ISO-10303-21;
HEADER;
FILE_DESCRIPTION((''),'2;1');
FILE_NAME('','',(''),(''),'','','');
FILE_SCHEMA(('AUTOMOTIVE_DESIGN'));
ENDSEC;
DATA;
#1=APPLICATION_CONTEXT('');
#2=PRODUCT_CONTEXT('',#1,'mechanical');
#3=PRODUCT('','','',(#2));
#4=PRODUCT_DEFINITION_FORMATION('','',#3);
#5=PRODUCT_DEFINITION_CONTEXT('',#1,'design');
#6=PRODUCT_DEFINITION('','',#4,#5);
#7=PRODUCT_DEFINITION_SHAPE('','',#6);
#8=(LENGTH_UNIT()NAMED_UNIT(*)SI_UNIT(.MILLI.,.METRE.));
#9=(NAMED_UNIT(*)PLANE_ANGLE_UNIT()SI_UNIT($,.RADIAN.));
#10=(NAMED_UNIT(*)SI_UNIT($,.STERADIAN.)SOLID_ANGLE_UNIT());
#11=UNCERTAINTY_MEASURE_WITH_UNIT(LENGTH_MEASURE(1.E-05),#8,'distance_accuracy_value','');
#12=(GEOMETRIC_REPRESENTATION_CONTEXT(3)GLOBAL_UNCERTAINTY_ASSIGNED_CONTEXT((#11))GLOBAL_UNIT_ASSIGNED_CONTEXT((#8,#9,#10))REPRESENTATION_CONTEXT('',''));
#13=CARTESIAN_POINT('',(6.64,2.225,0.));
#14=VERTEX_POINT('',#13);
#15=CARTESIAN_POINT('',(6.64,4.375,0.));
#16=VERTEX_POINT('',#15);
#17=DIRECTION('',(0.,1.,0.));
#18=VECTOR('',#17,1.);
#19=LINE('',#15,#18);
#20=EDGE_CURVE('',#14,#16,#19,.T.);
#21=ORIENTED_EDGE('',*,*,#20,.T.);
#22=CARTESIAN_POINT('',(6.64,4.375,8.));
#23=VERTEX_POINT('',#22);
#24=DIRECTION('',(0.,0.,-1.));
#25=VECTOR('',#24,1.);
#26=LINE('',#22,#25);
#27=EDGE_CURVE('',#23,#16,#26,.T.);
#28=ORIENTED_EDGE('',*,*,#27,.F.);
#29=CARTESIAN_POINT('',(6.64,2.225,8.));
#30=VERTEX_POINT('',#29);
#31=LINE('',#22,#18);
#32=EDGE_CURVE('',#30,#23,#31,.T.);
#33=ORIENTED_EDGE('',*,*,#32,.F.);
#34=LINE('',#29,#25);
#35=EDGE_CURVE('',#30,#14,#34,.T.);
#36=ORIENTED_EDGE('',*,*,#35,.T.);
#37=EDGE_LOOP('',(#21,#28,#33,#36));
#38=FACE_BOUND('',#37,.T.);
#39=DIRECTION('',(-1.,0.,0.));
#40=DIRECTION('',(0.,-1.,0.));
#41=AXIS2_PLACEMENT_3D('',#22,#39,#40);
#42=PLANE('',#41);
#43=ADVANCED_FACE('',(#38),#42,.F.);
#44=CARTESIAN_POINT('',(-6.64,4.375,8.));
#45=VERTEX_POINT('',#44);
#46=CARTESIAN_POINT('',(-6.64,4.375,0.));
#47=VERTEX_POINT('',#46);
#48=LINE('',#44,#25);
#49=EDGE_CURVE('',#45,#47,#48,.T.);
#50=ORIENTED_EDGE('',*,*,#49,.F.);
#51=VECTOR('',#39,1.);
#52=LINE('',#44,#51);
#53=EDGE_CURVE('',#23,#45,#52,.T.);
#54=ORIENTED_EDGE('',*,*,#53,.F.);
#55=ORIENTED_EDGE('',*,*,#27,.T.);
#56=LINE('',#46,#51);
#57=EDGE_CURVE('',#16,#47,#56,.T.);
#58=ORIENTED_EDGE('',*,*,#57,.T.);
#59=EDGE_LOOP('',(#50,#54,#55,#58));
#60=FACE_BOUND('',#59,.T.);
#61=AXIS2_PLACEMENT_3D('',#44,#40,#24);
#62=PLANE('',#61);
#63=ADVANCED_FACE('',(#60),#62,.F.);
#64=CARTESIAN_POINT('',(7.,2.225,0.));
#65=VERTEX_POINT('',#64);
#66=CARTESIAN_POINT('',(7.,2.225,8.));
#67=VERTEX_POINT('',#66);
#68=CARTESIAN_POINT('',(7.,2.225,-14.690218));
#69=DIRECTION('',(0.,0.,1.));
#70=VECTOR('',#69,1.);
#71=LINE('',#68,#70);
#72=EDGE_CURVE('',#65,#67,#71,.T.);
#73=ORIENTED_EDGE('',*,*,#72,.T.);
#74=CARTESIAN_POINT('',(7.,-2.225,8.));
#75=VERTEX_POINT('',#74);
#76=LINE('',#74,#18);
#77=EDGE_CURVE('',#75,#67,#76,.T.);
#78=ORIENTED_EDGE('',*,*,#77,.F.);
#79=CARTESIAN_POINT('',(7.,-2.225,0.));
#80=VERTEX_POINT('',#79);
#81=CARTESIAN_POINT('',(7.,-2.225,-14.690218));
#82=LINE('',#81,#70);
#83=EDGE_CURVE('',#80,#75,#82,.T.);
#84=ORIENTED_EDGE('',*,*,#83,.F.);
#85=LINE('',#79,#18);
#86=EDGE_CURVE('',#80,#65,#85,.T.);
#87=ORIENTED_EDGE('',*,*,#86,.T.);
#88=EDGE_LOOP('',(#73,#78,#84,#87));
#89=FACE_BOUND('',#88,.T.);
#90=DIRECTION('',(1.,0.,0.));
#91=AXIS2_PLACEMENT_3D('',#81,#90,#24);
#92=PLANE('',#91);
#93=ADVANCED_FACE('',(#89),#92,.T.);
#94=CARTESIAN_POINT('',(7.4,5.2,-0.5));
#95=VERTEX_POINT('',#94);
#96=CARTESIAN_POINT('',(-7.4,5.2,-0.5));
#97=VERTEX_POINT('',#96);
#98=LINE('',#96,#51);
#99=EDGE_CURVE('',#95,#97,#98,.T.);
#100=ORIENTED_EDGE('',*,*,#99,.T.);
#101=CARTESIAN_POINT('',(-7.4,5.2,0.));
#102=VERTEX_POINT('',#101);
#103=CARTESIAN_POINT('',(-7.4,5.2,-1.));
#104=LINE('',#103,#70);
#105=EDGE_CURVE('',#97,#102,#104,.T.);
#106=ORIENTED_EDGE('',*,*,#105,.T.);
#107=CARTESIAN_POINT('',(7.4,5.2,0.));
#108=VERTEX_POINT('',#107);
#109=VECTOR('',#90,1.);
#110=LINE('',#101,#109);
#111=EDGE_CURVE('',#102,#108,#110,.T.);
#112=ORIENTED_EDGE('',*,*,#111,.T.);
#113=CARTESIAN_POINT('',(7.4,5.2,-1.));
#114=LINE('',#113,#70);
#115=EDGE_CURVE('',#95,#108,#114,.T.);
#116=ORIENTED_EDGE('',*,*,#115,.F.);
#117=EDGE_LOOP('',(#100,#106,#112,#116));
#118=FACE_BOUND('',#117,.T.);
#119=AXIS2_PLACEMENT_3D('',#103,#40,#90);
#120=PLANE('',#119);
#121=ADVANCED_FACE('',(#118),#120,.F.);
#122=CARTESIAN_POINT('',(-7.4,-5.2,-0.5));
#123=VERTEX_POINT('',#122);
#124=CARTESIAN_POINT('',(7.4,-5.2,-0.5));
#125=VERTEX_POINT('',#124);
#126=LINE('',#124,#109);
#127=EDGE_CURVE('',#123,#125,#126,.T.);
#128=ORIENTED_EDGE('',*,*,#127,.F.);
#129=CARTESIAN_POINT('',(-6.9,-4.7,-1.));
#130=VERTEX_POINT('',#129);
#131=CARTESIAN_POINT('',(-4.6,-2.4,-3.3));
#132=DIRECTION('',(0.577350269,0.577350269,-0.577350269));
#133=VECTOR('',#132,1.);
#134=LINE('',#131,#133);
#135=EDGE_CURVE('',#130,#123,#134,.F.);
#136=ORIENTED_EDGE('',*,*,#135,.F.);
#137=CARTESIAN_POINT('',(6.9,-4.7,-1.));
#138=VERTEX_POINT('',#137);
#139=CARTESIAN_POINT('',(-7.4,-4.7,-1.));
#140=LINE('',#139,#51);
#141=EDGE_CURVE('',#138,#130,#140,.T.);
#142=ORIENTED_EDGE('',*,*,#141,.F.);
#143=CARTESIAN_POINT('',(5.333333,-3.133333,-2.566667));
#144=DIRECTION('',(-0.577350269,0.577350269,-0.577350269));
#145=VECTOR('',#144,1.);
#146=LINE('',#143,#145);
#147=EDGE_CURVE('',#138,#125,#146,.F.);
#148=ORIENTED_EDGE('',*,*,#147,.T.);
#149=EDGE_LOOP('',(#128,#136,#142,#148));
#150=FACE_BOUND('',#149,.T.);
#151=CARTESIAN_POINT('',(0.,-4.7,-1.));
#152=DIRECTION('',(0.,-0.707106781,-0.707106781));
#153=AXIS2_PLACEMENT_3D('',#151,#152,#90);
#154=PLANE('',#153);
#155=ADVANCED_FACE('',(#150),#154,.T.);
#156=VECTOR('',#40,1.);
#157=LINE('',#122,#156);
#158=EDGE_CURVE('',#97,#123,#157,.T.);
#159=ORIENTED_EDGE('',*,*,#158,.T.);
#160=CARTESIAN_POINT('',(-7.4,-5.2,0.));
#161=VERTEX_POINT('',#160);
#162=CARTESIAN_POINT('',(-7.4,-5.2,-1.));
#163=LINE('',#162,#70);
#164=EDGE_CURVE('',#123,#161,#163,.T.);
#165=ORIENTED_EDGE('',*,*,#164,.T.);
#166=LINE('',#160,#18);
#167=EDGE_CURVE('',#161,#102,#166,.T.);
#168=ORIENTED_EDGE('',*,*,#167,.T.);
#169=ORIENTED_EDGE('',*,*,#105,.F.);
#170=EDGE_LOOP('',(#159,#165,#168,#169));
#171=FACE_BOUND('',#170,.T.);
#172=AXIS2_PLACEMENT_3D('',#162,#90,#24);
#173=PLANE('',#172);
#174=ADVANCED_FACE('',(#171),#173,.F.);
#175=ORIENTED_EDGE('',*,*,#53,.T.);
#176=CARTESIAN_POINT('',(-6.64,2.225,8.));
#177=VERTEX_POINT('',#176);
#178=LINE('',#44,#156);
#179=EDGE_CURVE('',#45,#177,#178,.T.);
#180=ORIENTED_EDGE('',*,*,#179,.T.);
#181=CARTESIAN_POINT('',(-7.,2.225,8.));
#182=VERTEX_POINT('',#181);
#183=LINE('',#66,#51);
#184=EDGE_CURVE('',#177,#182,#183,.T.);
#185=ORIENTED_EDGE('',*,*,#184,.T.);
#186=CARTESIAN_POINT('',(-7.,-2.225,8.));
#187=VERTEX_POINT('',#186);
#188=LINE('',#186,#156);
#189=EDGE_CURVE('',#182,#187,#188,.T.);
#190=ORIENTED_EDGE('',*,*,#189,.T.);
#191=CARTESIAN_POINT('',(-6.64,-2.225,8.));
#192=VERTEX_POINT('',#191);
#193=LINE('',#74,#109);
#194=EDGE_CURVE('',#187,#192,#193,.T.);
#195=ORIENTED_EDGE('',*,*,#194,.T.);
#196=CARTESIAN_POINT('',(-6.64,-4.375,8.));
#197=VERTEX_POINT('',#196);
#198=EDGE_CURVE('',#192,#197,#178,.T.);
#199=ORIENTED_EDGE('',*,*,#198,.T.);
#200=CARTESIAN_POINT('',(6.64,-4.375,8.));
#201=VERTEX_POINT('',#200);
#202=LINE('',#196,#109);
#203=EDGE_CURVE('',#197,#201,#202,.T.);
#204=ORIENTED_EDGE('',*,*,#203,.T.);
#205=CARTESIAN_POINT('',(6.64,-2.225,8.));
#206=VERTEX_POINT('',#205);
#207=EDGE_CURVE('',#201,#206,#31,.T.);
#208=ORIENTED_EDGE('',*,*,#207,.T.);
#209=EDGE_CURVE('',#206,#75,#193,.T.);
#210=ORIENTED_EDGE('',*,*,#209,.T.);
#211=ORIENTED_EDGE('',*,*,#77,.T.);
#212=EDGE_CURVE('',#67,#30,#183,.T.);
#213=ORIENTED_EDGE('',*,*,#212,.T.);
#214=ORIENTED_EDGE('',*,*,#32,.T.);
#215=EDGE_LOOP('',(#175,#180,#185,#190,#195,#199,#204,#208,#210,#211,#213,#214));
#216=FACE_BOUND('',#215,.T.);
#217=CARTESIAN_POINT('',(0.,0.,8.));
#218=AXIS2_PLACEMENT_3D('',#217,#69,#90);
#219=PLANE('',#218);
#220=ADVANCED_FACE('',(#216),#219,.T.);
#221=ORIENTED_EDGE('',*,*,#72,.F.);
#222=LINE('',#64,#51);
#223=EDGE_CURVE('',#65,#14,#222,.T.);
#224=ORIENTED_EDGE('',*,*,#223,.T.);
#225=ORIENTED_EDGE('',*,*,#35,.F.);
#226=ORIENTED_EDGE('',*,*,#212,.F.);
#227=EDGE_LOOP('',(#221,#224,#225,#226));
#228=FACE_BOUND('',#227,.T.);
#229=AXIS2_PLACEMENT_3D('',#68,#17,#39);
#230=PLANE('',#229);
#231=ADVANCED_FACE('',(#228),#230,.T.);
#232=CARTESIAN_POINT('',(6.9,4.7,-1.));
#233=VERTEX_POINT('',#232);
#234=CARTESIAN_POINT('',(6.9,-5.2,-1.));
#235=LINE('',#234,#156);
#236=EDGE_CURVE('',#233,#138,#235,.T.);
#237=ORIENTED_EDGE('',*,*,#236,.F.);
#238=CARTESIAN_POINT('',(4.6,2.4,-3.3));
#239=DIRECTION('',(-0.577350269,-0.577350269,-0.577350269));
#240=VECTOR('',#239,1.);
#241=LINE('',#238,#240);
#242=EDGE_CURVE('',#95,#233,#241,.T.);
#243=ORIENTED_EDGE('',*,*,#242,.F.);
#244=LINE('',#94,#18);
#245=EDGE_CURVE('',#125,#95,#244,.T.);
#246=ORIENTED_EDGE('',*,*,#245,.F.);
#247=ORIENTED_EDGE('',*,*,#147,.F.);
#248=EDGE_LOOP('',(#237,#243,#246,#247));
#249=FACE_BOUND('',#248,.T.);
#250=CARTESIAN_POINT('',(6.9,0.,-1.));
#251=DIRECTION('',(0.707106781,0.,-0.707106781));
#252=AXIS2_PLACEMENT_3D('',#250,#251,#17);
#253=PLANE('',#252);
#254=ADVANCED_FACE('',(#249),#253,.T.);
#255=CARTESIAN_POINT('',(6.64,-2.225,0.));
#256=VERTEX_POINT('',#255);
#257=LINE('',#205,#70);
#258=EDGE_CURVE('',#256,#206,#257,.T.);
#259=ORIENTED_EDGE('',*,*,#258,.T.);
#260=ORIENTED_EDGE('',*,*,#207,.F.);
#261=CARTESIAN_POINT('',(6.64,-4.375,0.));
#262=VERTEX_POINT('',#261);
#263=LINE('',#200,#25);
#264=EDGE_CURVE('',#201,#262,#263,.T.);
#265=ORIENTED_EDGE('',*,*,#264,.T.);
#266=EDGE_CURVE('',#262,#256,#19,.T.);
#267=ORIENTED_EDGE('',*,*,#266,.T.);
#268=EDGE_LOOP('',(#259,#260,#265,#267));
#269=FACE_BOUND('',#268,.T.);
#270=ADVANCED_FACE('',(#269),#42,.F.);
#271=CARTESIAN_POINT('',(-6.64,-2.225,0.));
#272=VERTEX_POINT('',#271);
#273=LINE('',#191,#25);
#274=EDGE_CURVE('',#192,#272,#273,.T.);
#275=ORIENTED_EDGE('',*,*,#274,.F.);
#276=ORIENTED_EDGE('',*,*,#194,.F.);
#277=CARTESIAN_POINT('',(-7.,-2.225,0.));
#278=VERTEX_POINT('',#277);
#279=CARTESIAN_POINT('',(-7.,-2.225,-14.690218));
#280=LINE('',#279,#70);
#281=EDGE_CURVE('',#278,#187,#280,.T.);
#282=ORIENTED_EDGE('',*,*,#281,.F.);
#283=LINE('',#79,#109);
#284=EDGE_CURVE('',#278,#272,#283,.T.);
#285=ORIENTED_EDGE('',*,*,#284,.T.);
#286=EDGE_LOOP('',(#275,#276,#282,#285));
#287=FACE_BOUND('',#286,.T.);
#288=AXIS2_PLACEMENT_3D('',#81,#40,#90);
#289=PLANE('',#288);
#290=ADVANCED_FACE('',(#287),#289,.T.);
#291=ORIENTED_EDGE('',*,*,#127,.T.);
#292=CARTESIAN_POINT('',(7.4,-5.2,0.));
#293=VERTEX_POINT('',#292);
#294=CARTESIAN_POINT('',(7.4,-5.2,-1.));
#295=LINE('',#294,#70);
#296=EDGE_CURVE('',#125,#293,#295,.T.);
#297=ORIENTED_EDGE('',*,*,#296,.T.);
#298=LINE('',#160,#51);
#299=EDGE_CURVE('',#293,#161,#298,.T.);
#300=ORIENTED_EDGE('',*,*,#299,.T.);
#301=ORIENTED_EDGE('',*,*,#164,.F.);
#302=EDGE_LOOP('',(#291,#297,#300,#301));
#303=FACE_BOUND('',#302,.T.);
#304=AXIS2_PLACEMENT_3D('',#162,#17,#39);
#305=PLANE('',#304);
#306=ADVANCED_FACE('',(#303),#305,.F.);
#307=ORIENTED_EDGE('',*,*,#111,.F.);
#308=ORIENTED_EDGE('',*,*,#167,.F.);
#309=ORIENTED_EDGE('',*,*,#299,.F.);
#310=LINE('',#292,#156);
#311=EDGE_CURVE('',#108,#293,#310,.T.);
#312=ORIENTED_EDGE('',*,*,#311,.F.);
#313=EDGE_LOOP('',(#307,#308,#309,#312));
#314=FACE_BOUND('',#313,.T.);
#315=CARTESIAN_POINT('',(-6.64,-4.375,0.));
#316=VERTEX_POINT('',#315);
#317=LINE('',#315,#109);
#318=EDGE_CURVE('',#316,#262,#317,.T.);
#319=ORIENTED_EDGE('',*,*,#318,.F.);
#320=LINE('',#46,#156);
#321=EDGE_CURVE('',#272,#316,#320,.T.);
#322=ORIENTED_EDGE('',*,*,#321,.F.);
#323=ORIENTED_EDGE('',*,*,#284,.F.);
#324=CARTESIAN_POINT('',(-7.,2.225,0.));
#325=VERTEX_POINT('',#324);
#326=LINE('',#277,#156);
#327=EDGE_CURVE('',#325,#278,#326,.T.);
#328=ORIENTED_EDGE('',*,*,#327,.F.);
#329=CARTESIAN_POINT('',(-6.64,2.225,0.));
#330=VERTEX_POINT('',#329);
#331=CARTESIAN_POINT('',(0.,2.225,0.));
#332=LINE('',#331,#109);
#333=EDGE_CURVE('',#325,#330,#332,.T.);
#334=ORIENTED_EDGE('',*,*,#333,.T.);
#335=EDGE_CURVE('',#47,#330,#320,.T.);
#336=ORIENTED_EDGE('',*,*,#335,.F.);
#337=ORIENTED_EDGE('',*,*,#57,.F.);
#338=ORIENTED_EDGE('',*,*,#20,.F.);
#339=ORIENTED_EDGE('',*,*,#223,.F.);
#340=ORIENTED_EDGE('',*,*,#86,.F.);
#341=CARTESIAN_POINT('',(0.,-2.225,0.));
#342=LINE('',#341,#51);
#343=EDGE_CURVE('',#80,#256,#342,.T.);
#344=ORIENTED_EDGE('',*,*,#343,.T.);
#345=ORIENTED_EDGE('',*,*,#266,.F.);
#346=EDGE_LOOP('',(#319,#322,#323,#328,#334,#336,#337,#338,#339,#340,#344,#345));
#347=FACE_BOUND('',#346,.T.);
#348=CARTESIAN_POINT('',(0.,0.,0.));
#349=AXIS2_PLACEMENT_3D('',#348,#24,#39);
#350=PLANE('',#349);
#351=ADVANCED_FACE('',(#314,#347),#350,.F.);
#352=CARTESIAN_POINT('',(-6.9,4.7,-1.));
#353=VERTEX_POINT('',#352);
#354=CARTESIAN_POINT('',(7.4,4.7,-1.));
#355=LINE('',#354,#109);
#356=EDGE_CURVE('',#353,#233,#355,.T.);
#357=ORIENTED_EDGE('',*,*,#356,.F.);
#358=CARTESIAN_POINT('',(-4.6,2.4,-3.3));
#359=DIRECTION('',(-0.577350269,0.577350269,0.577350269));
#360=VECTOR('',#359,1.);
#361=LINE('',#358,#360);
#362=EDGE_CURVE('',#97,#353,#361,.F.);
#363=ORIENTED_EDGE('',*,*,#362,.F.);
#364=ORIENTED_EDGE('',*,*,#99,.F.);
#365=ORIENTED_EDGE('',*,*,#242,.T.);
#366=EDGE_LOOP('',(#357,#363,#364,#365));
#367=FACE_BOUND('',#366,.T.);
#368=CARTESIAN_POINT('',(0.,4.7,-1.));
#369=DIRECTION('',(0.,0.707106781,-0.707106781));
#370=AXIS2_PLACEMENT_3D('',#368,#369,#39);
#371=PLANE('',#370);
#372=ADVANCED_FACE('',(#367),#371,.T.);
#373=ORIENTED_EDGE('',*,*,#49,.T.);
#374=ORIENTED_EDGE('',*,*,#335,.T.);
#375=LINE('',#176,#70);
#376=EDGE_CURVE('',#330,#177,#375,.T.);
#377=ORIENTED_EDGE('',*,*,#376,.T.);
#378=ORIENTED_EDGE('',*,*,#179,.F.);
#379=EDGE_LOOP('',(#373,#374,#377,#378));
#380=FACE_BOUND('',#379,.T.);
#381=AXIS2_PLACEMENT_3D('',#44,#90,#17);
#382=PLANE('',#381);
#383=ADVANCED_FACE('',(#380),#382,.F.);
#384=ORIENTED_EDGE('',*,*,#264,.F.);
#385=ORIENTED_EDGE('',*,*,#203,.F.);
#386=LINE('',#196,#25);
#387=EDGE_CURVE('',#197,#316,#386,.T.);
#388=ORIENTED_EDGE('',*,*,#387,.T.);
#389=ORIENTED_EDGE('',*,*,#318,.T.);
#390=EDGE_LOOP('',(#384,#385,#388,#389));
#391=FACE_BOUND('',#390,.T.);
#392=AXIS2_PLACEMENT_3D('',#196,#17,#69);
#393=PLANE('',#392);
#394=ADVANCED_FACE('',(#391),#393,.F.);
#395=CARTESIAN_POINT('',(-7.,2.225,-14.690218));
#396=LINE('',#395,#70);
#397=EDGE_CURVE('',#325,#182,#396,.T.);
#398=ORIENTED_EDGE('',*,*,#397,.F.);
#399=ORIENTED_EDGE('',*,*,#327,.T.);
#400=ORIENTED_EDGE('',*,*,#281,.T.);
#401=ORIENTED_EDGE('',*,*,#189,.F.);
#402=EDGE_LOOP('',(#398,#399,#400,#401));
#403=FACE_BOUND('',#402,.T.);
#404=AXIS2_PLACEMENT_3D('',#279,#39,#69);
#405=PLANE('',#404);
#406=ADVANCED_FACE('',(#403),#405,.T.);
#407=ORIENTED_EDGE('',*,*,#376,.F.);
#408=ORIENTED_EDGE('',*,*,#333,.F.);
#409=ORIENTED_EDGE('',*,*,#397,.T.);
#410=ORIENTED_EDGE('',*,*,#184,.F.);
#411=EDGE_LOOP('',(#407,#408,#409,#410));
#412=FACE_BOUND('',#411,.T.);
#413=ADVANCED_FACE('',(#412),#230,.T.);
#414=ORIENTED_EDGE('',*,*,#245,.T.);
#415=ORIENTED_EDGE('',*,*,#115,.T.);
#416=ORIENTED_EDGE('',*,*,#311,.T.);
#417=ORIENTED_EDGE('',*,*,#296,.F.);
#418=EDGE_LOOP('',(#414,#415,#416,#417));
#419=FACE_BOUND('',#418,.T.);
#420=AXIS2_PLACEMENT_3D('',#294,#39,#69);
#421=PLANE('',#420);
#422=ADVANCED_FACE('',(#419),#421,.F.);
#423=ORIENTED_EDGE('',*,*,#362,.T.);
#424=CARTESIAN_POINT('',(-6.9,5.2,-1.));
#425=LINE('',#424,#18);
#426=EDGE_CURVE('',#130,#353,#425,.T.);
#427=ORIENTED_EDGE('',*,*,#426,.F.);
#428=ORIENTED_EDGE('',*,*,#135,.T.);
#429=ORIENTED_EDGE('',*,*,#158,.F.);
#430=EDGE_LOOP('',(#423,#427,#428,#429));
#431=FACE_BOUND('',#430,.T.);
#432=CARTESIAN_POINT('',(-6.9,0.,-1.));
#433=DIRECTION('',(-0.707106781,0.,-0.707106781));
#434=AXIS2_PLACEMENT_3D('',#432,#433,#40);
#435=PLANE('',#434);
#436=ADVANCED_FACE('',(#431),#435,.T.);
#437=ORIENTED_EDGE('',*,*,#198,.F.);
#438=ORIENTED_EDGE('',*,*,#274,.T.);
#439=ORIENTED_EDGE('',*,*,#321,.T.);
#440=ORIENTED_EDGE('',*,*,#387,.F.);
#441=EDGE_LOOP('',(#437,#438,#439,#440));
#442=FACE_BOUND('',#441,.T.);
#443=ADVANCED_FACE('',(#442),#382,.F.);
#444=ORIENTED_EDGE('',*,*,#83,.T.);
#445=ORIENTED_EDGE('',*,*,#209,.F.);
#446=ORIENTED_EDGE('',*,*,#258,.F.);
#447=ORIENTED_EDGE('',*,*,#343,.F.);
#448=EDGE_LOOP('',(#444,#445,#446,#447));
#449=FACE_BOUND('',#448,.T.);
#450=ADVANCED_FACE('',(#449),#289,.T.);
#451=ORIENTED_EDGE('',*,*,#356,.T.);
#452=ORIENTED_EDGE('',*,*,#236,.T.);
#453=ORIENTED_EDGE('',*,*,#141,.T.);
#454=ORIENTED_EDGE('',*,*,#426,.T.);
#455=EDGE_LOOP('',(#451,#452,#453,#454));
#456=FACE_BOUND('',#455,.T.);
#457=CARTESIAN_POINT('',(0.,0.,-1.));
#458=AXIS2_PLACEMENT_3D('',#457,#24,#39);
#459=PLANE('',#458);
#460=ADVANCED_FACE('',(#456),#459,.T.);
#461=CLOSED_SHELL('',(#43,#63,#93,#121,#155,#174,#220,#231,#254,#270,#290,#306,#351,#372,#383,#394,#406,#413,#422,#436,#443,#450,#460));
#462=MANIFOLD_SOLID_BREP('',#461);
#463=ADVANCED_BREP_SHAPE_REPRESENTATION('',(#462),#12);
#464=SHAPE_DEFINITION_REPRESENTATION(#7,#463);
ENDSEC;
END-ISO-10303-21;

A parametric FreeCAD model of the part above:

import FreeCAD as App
import Part
import Sketcher

V = App.Vector
Q = App.Units.Quantity


def edges_at(feature, points):
    """Names of the edges that pass closest to the given points."""
    edges = feature.Shape.Edges
    near = lambda p: min(range(len(edges)), key=lambda i: edges[i].distToShape(Part.Vertex(*p))[0])
    return sorted({f"Edge{near(p) + 1}" for p in points})

doc = App.newDocument("Part")
params = doc.addObject("Spreadsheet::Sheet", "Params")
for row, (alias, value) in enumerate([
    ("sketch1_width", "13.28 mm"),
    ("sketch1_height", "8.75 mm"),
    ("pad1_length", "8 mm"),
    ("sketch2_width", "14.8 mm"),
    ("sketch2_height", "10.4 mm"),
    ("pad2_length", "1 mm"),
    ("chamfer_size", "0.5 mm"),
    ("sketch3_width", "14 mm"),
    ("sketch3_height", "4.45 mm"),
    ("pad3_length", "8 mm"),
], start=1):
    params.set(f"A{row}", alias)
    params.set(f"B{row}", "=" + value)
    params.setAlias(f"B{row}", alias)

body = doc.addObject("PartDesign::Body", "Body")

# Sketch on XY plane
sketch1 = doc.addObject("Sketcher::SketchObject", "Sketch")
body.addObject(sketch1)
sketch1.AttachmentSupport = (doc.XY_Plane, [""])
sketch1.MapMode = "FlatFace"
sketch1.addGeometry([
    Part.LineSegment(V(-6.64, 4.375, 0), V(-6.64, -4.375, 0)),
    Part.LineSegment(V(-6.64, -4.375, 0), V(6.64, -4.375, 0)),
    Part.LineSegment(V(6.64, -4.375, 0), V(6.64, 4.375, 0)),
    Part.LineSegment(V(6.64, 4.375, 0), V(-6.64, 4.375, 0)),
], False)
sketch1.addConstraint([
    Sketcher.Constraint("Coincident", 0, 2, 1, 1),
    Sketcher.Constraint("Coincident", 1, 2, 2, 1),
    Sketcher.Constraint("Coincident", 2, 2, 3, 1),
    Sketcher.Constraint("Coincident", 3, 2, 0, 1),
    Sketcher.Constraint("Vertical", 0),
    Sketcher.Constraint("Horizontal", 1),
    Sketcher.Constraint("Vertical", 2),
    Sketcher.Constraint("Horizontal", 3),
    Sketcher.Constraint("Symmetric", 0, 2, 2, 2, -1, 1),
    Sketcher.Constraint("DistanceX", 1, 1, 1, 2, Q("13.28 mm")),
    Sketcher.Constraint("DistanceY", 0, 2, 0, 1, Q("8.75 mm")),
])
sketch1.setExpression("Constraints[9]", "Params.sketch1_width")
sketch1.setExpression("Constraints[10]", "Params.sketch1_height")
pad1 = doc.addObject("PartDesign::Pad", "Pad")
body.addObject(pad1)
pad1.Profile = sketch1
pad1.setExpression("Length", "Params.pad1_length")

# Sketch on XY plane
sketch2 = doc.addObject("Sketcher::SketchObject", "Sketch001")
body.addObject(sketch2)
sketch2.AttachmentSupport = (doc.XY_Plane, [""])
sketch2.MapMode = "FlatFace"
sketch2.addGeometry([
    Part.LineSegment(V(7.4, 5.2, 0), V(7.4, -5.2, 0)),
    Part.LineSegment(V(7.4, -5.2, 0), V(-7.4, -5.2, 0)),
    Part.LineSegment(V(-7.4, -5.2, 0), V(-7.4, 5.2, 0)),
    Part.LineSegment(V(-7.4, 5.2, 0), V(7.4, 5.2, 0)),
], False)
sketch2.addConstraint([
    Sketcher.Constraint("Coincident", 0, 2, 1, 1),
    Sketcher.Constraint("Coincident", 1, 2, 2, 1),
    Sketcher.Constraint("Coincident", 2, 2, 3, 1),
    Sketcher.Constraint("Coincident", 3, 2, 0, 1),
    Sketcher.Constraint("Vertical", 0),
    Sketcher.Constraint("Horizontal", 1),
    Sketcher.Constraint("Vertical", 2),
    Sketcher.Constraint("Horizontal", 3),
    Sketcher.Constraint("Symmetric", 0, 2, 2, 2, -1, 1),
    Sketcher.Constraint("DistanceX", 1, 2, 1, 1, Q("14.8 mm")),
    Sketcher.Constraint("DistanceY", 0, 2, 0, 1, Q("10.4 mm")),
])
sketch2.setExpression("Constraints[9]", "Params.sketch2_width")
sketch2.setExpression("Constraints[10]", "Params.sketch2_height")
pad2 = doc.addObject("PartDesign::Pad", "Pad001")
body.addObject(pad2)
pad2.Profile = sketch2
pad2.setExpression("Length", "Params.pad2_length")
pad2.Reversed = True
doc.recompute()

chamfer = doc.addObject("PartDesign::Chamfer", "Chamfer")
body.addObject(chamfer)
chamfer.Base = (pad2, edges_at(pad2, [
    (7.4, 0, -1),
    (0, -5.2, -1),
    (-7.4, 0, -1),
    (0, 5.2, -1),
]))
chamfer.setExpression("Size", "Params.chamfer_size")

# Sketch on XY plane
sketch3 = doc.addObject("Sketcher::SketchObject", "Sketch002")
body.addObject(sketch3)
sketch3.AttachmentSupport = (doc.XY_Plane, [""])
sketch3.MapMode = "FlatFace"
sketch3.AttachmentOffset = App.Placement(V(0, 0, 8), App.Rotation())
sketch3.addGeometry([
    Part.LineSegment(V(-7, 2.225, 0), V(-7, -2.225, 0)),
    Part.LineSegment(V(-7, -2.225, 0), V(7, -2.225, 0)),
    Part.LineSegment(V(7, -2.225, 0), V(7, 2.225, 0)),
    Part.LineSegment(V(7, 2.225, 0), V(-7, 2.225, 0)),
], False)
sketch3.addConstraint([
    Sketcher.Constraint("Coincident", 0, 2, 1, 1),
    Sketcher.Constraint("Coincident", 1, 2, 2, 1),
    Sketcher.Constraint("Coincident", 2, 2, 3, 1),
    Sketcher.Constraint("Coincident", 3, 2, 0, 1),
    Sketcher.Constraint("Vertical", 0),
    Sketcher.Constraint("Horizontal", 1),
    Sketcher.Constraint("Vertical", 2),
    Sketcher.Constraint("Horizontal", 3),
    Sketcher.Constraint("Symmetric", 0, 2, 2, 2, -1, 1),
    Sketcher.Constraint("DistanceX", 1, 1, 1, 2, Q("14 mm")),
    Sketcher.Constraint("DistanceY", 0, 2, 0, 1, Q("4.45 mm")),
])
sketch3.setExpression("Constraints[9]", "Params.sketch3_width")
sketch3.setExpression("Constraints[10]", "Params.sketch3_height")
pad3 = doc.addObject("PartDesign::Pad", "Pad002")
body.addObject(pad3)
pad3.Profile = sketch3
pad3.setExpression("Length", "Params.pad3_length")
pad3.Reversed = True

doc.recompute()
